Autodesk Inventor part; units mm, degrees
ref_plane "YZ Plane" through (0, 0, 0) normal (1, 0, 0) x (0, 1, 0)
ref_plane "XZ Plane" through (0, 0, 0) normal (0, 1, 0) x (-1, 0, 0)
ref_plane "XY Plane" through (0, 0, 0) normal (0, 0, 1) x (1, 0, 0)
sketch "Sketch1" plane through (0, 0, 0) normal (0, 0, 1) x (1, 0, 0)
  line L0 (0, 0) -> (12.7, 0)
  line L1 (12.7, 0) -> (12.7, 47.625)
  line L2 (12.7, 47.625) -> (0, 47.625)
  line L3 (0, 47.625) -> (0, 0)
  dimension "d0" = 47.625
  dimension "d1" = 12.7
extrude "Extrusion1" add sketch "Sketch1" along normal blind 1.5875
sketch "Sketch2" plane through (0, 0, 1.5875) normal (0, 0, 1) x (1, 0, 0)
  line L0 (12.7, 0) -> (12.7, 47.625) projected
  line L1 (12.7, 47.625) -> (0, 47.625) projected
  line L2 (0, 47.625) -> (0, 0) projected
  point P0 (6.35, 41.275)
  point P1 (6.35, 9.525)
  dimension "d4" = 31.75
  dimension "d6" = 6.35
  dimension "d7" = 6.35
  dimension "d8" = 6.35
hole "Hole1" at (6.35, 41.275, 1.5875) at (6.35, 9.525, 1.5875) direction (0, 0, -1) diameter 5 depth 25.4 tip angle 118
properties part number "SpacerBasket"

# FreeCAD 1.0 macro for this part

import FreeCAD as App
import Part
import Sketcher

V = App.Vector
Q = App.Units.Quantity

doc = App.newDocument("Part")
body = doc.addObject("PartDesign::Body", "Body")

# Sketch on XY plane
sketch1 = doc.addObject("Sketcher::SketchObject", "Sketch")
body.addObject(sketch1)
sketch1.AttachmentSupport = (doc.XY_Plane, [""])
sketch1.MapMode = "FlatFace"
sketch1.addGeometry(Part.LineSegment(V(0, 47.625, 0), V(0, 0, 0)), False)
sketch1.addGeometry(Part.LineSegment(V(0, 0, 0), V(12.7, 0, 0)), False)
sketch1.addGeometry(Part.LineSegment(V(12.7, 0, 0), V(12.7, 47.625, 0)), False)
sketch1.addGeometry(Part.LineSegment(V(12.7, 47.625, 0), V(0, 47.625, 0)), False)
sketch1.addConstraint(Sketcher.Constraint("Coincident", 0, 2, 1, 1))
sketch1.addConstraint(Sketcher.Constraint("Coincident", 1, 2, 2, 1))
sketch1.addConstraint(Sketcher.Constraint("Coincident", 2, 2, 3, 1))
sketch1.addConstraint(Sketcher.Constraint("Coincident", 3, 2, 0, 1))
sketch1.addConstraint(Sketcher.Constraint("Vertical", 0))
sketch1.addConstraint(Sketcher.Constraint("Horizontal", 1))
sketch1.addConstraint(Sketcher.Constraint("Vertical", 2))
sketch1.addConstraint(Sketcher.Constraint("Horizontal", 3))
sketch1.addConstraint(Sketcher.Constraint("Coincident", 0, 2, -1, 1))
sketch1.addConstraint(Sketcher.Constraint("DistanceX", 1, 1, 1, 2, Q("0.5 in")))
sketch1.addConstraint(Sketcher.Constraint("DistanceY", 0, 2, 0, 1, Q("1.875 in")))
pad1 = doc.addObject("PartDesign::Pad", "Pad")
body.addObject(pad1)
pad1.Profile = sketch1
pad1.Length = Q("0.0625 in")

# Sketch on XY plane
sketch2 = doc.addObject("Sketcher::SketchObject", "Sketch001")
body.addObject(sketch2)
sketch2.AttachmentSupport = (doc.XY_Plane, [""])
sketch2.MapMode = "FlatFace"
sketch2.AttachmentOffset = App.Placement(V(0, 0, 0.0625 * 25.4), App.Rotation())
sketch2.addGeometry(Part.Circle(V(6.35, 41.275, 0), V(0, 0, 1), 2.5), False)
sketch2.addGeometry(Part.Circle(V(6.35, 9.525, 0), V(0, 0, 1), 2.5), False)
sketch2.addConstraint(Sketcher.Constraint("Equal", 0, 1))
sketch2.addConstraint(Sketcher.Constraint("Vertical", 0, 3, 1, 3))
sketch2.addConstraint(Sketcher.Constraint("Diameter", 0, 5.0))
sketch2.addConstraint(Sketcher.Constraint("DistanceX", -1, 1, 0, 3, Q("0.25 in")))
sketch2.addConstraint(Sketcher.Constraint("DistanceY", 1, 3, 0, 3, Q("1.25 in")))
sketch2.addConstraint(Sketcher.Constraint("DistanceY", -1, 1, 0, 3, Q("1.625 in")))
doc.recompute()
hole = doc.addObject("PartDesign::Hole", "Hole")
body.addObject(hole)
hole.Profile = sketch2
hole.ThreadType = "None"
hole.Diameter = 5
hole.DepthType = "Dimension"
hole.Depth = Q("1 in")
hole.DrillPoint = "Angled"
hole.DrillPointAngle = 118

doc.recompute()
